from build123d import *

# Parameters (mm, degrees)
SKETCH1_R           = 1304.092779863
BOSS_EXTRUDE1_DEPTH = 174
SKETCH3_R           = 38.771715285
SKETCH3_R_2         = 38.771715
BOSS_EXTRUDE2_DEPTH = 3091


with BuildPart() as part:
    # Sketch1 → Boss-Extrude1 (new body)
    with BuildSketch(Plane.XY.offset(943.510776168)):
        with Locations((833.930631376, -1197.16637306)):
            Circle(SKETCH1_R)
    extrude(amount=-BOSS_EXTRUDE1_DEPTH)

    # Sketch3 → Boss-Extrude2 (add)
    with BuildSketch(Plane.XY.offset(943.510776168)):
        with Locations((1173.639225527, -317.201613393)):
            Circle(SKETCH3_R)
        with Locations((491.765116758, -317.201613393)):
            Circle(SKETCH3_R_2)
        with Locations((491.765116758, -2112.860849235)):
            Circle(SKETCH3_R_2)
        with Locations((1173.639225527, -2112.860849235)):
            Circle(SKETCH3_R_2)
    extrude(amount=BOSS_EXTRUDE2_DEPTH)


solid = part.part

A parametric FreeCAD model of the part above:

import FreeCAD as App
import Part
import Sketcher
Q = App.Units.Quantity

doc = App.newDocument("Part")
body = doc.addObject("PartDesign::Body", "Body")

sketch1 = body.newObject("Sketcher::SketchObject", "Sketch")
sketch1.AttachmentSupport = (doc.getObject("XY_Plane"), [""])
sketch1.MapMode = "FlatFace"
sketch1.AttachmentOffset = App.Placement(App.Vector(0, 0, 943.510776), App.Rotation())
sketch1.addGeometry(Part.Circle(App.Vector(833.930631, -1197.166373, 0), App.Vector(0, 0, 1), 1304.09278), False)
sketch1.addConstraint([
    Sketcher.Constraint("Diameter", 0, Q("2608.18556 mm")),
    Sketcher.Constraint("DistanceX", -1, 1, 0, 3, Q("833.930631 mm")),
    Sketcher.Constraint("DistanceY", 0, 3, -1, 1, Q("1197.166373 mm")),
])
pad1 = body.newObject("PartDesign::Pad", "Pad")
pad1.Profile = sketch1
pad1.Length = 174
pad1.Reversed = True

sketch2 = body.newObject("Sketcher::SketchObject", "Sketch001")
sketch2.AttachmentSupport = (doc.getObject("XY_Plane"), [""])
sketch2.MapMode = "FlatFace"
sketch2.AttachmentOffset = App.Placement(App.Vector(0, 0, 943.510776), App.Rotation())
sketch2.addGeometry([
    Part.Circle(App.Vector(1173.639226, -317.201613, 0), App.Vector(0, 0, 1), 38.771715),
    Part.Circle(App.Vector(491.765117, -317.201613, 0), App.Vector(0, 0, 1), 38.771715),
    Part.Circle(App.Vector(491.765117, -2112.860849, 0), App.Vector(0, 0, 1), 38.771715),
    Part.Circle(App.Vector(1173.639226, -2112.860849, 0), App.Vector(0, 0, 1), 38.771715),
], False)
sketch2.addConstraint([
    Sketcher.Constraint("Equal", 0, 1),
    Sketcher.Constraint("Equal", 1, 2),
    Sketcher.Constraint("Equal", 2, 3),
    Sketcher.Constraint("Horizontal", 0, 3, 1, 3),
    Sketcher.Constraint("Horizontal", 2, 3, 3, 3),
    Sketcher.Constraint("Vertical", 1, 3, 2, 3),
    Sketcher.Constraint("Vertical", 0, 3, 3, 3),
    Sketcher.Constraint("Diameter", 0, Q("77.543431 mm")),
    Sketcher.Constraint("DistanceY", 2, 3, -1, 1, Q("2112.860849 mm")),
    Sketcher.Constraint("DistanceX", 1, 3, 0, 3, Q("681.874109 mm")),
    Sketcher.Constraint("DistanceX", -1, 1, 0, 3, Q("1173.639226 mm")),
    Sketcher.Constraint("DistanceY", 0, 3, -1, 1, Q("317.201613 mm")),
])
pad2 = body.newObject("PartDesign::Pad", "Pad001")
pad2.Profile = sketch2
pad2.Length = 3091

doc.recompute()
